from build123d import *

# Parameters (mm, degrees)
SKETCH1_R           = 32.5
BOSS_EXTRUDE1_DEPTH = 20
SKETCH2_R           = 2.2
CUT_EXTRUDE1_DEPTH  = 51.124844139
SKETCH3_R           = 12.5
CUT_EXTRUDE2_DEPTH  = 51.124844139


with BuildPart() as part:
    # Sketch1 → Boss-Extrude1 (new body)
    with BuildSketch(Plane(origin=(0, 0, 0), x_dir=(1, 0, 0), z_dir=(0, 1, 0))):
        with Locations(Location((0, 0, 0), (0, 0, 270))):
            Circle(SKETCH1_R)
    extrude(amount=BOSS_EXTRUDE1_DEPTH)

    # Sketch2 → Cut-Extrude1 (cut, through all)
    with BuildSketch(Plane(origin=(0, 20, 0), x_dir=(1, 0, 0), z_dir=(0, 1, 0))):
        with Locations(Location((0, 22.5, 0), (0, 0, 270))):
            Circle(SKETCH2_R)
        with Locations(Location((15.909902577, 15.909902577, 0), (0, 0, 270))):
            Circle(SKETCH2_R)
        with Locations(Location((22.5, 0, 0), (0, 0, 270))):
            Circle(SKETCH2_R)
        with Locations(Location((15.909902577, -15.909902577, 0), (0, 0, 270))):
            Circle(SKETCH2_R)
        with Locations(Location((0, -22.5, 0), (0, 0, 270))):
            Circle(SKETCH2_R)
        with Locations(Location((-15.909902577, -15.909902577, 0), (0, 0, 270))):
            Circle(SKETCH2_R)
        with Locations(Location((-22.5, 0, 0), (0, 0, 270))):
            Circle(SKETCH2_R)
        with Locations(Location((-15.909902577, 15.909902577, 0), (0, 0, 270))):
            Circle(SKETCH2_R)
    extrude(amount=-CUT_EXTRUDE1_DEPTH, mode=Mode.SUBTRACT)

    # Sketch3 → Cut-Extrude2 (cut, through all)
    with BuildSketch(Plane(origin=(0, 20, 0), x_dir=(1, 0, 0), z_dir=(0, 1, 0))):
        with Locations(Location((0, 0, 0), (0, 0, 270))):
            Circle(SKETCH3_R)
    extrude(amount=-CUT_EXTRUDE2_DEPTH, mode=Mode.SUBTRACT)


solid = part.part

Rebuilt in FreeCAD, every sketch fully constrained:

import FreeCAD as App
import Part
import Sketcher
Q = App.Units.Quantity

doc = App.newDocument("Part")
body = doc.addObject("PartDesign::Body", "Body")

# Sketch on XZ plane
sketch1 = body.newObject("Sketcher::SketchObject", "Sketch")
sketch1.AttachmentSupport = (doc.getObject("XZ_Plane"), [""])
sketch1.MapMode = "FlatFace"
sketch1.addGeometry(Part.Circle(App.Vector(0, 0, 0), App.Vector(0, 0, 1), 32.5), False)
sketch1.addConstraint([
    Sketcher.Constraint("Coincident", 0, 3, -1, 1),
    Sketcher.Constraint("Diameter", 0, Q("65 mm")),
])
pad1 = body.newObject("PartDesign::Pad", "Pad")
pad1.Profile = sketch1
pad1.Length = 20
pad1.Reversed = True

# Sketch on XZ plane
sketch2 = body.newObject("Sketcher::SketchObject", "Sketch001")
sketch2.AttachmentSupport = (doc.getObject("XZ_Plane"), [""])
sketch2.MapMode = "FlatFace"
sketch2.AttachmentOffset = App.Placement(App.Vector(0, 0, -20), App.Rotation())
sketch2.addGeometry([
    Part.Circle(App.Vector(0, -22.5, 0), App.Vector(0, 0, 1), 2.2),  # 0
    Part.Circle(App.Vector(15.909903, -15.909903, 0), App.Vector(0, 0, 1), 2.2),  # 1
    Part.Circle(App.Vector(22.5, 0, 0), App.Vector(0, 0, 1), 2.2),  # 2
    Part.Circle(App.Vector(15.909903, 15.909903, 0), App.Vector(0, 0, 1), 2.2),  # 3
    Part.Circle(App.Vector(0, 22.5, 0), App.Vector(0, 0, 1), 2.2),  # 4
    Part.Circle(App.Vector(-15.909903, 15.909903, 0), App.Vector(0, 0, 1), 2.2),  # 5
    Part.Circle(App.Vector(-22.5, 0, 0), App.Vector(0, 0, 1), 2.2),  # 6
    Part.Circle(App.Vector(-15.909903, -15.909903, 0), App.Vector(0, 0, 1), 2.2),  # 7
], False)
sketch2.addConstraint([
    Sketcher.Constraint("Equal", 0, 1),
    Sketcher.Constraint("Equal", 1, 2),
    Sketcher.Constraint("Equal", 2, 3),
    Sketcher.Constraint("Equal", 3, 4),
    Sketcher.Constraint("Equal", 4, 5),
    Sketcher.Constraint("Equal", 5, 6),
    Sketcher.Constraint("Equal", 6, 7),
    Sketcher.Constraint("Symmetric", 0, 3, 4, 3, -1, 1),
    Sketcher.Constraint("Symmetric", 1, 3, 5, 3, -1, 1),
    Sketcher.Constraint("Symmetric", 2, 3, 6, 3, -1, 1),
    Sketcher.Constraint("Symmetric", 3, 3, 7, 3, -1, 1),
    Sketcher.Constraint("Symmetric", 3, 3, 5, 3, -2),
    Sketcher.Constraint("PointOnObject", 0, 3, -2),
    Sketcher.Constraint("PointOnObject", 2, 3, -1),
    Sketcher.Constraint("Diameter", 0, Q("4.4 mm")),
    Sketcher.Constraint("DistanceY", 0, 3, 4, 3, Q("45 mm")),
    Sketcher.Constraint("DistanceX", -1, 1, 2, 3, Q("22.5 mm")),
    Sketcher.Constraint("DistanceX", -1, 1, 1, 3, Q("15.909903 mm")),
    Sketcher.Constraint("DistanceY", 1, 3, -1, 1, Q("15.909903 mm")),
])
pocket1 = body.newObject("PartDesign::Pocket", "Pocket")
pocket1.Profile = sketch2
pocket1.Type = "ThroughAll"
pocket1.Reversed = True

# Sketch on XZ plane
sketch3 = body.newObject("Sketcher::SketchObject", "Sketch002")
sketch3.AttachmentSupport = (doc.getObject("XZ_Plane"), [""])
sketch3.MapMode = "FlatFace"
sketch3.AttachmentOffset = App.Placement(App.Vector(0, 0, -20), App.Rotation())
sketch3.addGeometry(Part.Circle(App.Vector(0, 0, 0), App.Vector(0, 0, 1), 12.5), False)
sketch3.addConstraint([
    Sketcher.Constraint("Coincident", 0, 3, -1, 1),
    Sketcher.Constraint("Diameter", 0, Q("25 mm")),
])
pocket2 = body.newObject("PartDesign::Pocket", "Pocket001")
pocket2.Profile = sketch3
pocket2.Type = "ThroughAll"
pocket2.Reversed = True

doc.recompute()
